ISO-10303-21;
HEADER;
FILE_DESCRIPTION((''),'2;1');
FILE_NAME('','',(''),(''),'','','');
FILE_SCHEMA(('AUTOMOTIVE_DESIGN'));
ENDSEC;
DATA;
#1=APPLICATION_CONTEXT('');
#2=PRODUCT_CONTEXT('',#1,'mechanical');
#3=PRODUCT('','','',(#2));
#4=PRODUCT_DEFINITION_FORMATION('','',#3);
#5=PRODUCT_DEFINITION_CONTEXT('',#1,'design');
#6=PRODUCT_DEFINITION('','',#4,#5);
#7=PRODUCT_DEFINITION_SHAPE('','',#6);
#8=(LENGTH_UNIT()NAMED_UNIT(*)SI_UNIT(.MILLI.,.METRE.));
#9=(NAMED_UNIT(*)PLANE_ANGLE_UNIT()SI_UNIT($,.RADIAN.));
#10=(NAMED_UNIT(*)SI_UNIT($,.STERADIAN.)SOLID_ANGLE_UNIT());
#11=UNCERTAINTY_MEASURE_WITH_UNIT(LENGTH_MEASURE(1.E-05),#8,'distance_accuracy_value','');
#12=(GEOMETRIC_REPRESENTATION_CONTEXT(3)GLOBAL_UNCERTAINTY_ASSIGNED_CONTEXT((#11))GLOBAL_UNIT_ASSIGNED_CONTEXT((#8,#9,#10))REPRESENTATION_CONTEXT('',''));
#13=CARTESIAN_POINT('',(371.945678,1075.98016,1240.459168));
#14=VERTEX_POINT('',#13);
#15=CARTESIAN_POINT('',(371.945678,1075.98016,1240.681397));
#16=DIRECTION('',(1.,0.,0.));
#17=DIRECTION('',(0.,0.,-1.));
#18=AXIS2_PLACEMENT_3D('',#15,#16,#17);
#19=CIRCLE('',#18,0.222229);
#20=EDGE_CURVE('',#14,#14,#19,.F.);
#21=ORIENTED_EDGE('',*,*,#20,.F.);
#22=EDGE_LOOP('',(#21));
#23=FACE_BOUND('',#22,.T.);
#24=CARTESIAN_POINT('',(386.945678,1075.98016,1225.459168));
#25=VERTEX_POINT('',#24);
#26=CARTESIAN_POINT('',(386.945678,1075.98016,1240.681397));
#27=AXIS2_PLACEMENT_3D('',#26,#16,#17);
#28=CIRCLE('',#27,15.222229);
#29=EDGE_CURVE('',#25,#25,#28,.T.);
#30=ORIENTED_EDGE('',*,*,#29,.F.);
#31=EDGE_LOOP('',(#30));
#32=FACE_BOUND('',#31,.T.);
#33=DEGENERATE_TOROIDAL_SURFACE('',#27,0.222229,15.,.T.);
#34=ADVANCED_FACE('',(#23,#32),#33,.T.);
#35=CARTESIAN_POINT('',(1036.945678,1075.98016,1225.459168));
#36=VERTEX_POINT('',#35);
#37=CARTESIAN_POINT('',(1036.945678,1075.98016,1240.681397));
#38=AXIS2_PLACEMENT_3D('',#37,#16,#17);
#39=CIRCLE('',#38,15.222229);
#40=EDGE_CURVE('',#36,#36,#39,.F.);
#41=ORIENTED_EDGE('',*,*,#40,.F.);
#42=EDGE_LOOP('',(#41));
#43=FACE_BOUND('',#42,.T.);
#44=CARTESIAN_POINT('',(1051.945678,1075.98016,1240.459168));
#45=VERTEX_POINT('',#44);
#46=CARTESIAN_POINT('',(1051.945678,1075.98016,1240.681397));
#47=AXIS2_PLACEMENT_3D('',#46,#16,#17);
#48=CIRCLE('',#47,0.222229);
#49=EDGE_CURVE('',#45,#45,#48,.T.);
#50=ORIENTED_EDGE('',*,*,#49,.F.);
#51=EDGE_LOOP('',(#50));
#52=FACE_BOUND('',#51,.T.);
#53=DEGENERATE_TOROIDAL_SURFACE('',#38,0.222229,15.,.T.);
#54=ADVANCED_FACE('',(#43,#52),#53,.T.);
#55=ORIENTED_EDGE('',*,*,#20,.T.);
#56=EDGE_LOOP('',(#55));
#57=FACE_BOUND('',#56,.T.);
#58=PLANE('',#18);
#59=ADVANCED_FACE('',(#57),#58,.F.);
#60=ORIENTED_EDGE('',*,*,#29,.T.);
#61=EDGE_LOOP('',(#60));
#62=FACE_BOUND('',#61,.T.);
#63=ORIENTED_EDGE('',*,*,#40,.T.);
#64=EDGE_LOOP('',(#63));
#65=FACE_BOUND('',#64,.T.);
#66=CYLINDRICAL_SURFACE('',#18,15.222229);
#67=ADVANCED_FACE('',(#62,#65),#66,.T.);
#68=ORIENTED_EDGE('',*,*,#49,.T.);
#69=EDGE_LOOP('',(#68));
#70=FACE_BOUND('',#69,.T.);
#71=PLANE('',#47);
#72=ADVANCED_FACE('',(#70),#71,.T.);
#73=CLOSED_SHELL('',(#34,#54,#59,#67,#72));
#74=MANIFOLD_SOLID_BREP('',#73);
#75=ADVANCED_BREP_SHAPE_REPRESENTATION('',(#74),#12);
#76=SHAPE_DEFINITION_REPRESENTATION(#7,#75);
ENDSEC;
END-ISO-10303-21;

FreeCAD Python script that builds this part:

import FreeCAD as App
import Part
import Sketcher


def edges_at(feature, points):
    """Names of the edges that pass closest to the given points."""
    edges = feature.Shape.Edges
    near = lambda p: min(range(len(edges)), key=lambda i: edges[i].distToShape(Part.Vertex(*p))[0])
    return sorted({f"Edge{near(p) + 1}" for p in points})

doc = App.newDocument("Part")
body = doc.addObject("PartDesign::Body", "Body")

# Sketch on YZ plane
sketch1 = doc.addObject("Sketcher::SketchObject", "Sketch")
body.addObject(sketch1)
sketch1.AttachmentSupport = (doc.YZ_Plane, [""])
sketch1.MapMode = "FlatFace"
sketch1.AttachmentOffset = App.Placement(App.Vector(0, 0, 1051.945678), App.Rotation())
sketch1.addGeometry(Part.Circle(App.Vector(1075.98016, 1240.681397, 0), App.Vector(0, 0, 1), 15.222229), False)
sketch1.addConstraint([
    Sketcher.Constraint("Diameter", 0, 30.444457),
    Sketcher.Constraint("DistanceX", -1, 1, 0, 3, 1075.98016),
    Sketcher.Constraint("DistanceY", -1, 1, 0, 3, 1240.681397),
])
pad1 = doc.addObject("PartDesign::Pad", "Pad")
body.addObject(pad1)
pad1.Profile = sketch1
pad1.Length = 680
pad1.Reversed = True
doc.recompute()

fillet = doc.addObject("PartDesign::Fillet", "Fillet")
body.addObject(fillet)
fillet.Base = (pad1, edges_at(pad1, [(1051.946, 1075.98, 1255.904), (371.946, 1075.98, 1255.904)]))
fillet.Radius = 15

doc.recompute()
